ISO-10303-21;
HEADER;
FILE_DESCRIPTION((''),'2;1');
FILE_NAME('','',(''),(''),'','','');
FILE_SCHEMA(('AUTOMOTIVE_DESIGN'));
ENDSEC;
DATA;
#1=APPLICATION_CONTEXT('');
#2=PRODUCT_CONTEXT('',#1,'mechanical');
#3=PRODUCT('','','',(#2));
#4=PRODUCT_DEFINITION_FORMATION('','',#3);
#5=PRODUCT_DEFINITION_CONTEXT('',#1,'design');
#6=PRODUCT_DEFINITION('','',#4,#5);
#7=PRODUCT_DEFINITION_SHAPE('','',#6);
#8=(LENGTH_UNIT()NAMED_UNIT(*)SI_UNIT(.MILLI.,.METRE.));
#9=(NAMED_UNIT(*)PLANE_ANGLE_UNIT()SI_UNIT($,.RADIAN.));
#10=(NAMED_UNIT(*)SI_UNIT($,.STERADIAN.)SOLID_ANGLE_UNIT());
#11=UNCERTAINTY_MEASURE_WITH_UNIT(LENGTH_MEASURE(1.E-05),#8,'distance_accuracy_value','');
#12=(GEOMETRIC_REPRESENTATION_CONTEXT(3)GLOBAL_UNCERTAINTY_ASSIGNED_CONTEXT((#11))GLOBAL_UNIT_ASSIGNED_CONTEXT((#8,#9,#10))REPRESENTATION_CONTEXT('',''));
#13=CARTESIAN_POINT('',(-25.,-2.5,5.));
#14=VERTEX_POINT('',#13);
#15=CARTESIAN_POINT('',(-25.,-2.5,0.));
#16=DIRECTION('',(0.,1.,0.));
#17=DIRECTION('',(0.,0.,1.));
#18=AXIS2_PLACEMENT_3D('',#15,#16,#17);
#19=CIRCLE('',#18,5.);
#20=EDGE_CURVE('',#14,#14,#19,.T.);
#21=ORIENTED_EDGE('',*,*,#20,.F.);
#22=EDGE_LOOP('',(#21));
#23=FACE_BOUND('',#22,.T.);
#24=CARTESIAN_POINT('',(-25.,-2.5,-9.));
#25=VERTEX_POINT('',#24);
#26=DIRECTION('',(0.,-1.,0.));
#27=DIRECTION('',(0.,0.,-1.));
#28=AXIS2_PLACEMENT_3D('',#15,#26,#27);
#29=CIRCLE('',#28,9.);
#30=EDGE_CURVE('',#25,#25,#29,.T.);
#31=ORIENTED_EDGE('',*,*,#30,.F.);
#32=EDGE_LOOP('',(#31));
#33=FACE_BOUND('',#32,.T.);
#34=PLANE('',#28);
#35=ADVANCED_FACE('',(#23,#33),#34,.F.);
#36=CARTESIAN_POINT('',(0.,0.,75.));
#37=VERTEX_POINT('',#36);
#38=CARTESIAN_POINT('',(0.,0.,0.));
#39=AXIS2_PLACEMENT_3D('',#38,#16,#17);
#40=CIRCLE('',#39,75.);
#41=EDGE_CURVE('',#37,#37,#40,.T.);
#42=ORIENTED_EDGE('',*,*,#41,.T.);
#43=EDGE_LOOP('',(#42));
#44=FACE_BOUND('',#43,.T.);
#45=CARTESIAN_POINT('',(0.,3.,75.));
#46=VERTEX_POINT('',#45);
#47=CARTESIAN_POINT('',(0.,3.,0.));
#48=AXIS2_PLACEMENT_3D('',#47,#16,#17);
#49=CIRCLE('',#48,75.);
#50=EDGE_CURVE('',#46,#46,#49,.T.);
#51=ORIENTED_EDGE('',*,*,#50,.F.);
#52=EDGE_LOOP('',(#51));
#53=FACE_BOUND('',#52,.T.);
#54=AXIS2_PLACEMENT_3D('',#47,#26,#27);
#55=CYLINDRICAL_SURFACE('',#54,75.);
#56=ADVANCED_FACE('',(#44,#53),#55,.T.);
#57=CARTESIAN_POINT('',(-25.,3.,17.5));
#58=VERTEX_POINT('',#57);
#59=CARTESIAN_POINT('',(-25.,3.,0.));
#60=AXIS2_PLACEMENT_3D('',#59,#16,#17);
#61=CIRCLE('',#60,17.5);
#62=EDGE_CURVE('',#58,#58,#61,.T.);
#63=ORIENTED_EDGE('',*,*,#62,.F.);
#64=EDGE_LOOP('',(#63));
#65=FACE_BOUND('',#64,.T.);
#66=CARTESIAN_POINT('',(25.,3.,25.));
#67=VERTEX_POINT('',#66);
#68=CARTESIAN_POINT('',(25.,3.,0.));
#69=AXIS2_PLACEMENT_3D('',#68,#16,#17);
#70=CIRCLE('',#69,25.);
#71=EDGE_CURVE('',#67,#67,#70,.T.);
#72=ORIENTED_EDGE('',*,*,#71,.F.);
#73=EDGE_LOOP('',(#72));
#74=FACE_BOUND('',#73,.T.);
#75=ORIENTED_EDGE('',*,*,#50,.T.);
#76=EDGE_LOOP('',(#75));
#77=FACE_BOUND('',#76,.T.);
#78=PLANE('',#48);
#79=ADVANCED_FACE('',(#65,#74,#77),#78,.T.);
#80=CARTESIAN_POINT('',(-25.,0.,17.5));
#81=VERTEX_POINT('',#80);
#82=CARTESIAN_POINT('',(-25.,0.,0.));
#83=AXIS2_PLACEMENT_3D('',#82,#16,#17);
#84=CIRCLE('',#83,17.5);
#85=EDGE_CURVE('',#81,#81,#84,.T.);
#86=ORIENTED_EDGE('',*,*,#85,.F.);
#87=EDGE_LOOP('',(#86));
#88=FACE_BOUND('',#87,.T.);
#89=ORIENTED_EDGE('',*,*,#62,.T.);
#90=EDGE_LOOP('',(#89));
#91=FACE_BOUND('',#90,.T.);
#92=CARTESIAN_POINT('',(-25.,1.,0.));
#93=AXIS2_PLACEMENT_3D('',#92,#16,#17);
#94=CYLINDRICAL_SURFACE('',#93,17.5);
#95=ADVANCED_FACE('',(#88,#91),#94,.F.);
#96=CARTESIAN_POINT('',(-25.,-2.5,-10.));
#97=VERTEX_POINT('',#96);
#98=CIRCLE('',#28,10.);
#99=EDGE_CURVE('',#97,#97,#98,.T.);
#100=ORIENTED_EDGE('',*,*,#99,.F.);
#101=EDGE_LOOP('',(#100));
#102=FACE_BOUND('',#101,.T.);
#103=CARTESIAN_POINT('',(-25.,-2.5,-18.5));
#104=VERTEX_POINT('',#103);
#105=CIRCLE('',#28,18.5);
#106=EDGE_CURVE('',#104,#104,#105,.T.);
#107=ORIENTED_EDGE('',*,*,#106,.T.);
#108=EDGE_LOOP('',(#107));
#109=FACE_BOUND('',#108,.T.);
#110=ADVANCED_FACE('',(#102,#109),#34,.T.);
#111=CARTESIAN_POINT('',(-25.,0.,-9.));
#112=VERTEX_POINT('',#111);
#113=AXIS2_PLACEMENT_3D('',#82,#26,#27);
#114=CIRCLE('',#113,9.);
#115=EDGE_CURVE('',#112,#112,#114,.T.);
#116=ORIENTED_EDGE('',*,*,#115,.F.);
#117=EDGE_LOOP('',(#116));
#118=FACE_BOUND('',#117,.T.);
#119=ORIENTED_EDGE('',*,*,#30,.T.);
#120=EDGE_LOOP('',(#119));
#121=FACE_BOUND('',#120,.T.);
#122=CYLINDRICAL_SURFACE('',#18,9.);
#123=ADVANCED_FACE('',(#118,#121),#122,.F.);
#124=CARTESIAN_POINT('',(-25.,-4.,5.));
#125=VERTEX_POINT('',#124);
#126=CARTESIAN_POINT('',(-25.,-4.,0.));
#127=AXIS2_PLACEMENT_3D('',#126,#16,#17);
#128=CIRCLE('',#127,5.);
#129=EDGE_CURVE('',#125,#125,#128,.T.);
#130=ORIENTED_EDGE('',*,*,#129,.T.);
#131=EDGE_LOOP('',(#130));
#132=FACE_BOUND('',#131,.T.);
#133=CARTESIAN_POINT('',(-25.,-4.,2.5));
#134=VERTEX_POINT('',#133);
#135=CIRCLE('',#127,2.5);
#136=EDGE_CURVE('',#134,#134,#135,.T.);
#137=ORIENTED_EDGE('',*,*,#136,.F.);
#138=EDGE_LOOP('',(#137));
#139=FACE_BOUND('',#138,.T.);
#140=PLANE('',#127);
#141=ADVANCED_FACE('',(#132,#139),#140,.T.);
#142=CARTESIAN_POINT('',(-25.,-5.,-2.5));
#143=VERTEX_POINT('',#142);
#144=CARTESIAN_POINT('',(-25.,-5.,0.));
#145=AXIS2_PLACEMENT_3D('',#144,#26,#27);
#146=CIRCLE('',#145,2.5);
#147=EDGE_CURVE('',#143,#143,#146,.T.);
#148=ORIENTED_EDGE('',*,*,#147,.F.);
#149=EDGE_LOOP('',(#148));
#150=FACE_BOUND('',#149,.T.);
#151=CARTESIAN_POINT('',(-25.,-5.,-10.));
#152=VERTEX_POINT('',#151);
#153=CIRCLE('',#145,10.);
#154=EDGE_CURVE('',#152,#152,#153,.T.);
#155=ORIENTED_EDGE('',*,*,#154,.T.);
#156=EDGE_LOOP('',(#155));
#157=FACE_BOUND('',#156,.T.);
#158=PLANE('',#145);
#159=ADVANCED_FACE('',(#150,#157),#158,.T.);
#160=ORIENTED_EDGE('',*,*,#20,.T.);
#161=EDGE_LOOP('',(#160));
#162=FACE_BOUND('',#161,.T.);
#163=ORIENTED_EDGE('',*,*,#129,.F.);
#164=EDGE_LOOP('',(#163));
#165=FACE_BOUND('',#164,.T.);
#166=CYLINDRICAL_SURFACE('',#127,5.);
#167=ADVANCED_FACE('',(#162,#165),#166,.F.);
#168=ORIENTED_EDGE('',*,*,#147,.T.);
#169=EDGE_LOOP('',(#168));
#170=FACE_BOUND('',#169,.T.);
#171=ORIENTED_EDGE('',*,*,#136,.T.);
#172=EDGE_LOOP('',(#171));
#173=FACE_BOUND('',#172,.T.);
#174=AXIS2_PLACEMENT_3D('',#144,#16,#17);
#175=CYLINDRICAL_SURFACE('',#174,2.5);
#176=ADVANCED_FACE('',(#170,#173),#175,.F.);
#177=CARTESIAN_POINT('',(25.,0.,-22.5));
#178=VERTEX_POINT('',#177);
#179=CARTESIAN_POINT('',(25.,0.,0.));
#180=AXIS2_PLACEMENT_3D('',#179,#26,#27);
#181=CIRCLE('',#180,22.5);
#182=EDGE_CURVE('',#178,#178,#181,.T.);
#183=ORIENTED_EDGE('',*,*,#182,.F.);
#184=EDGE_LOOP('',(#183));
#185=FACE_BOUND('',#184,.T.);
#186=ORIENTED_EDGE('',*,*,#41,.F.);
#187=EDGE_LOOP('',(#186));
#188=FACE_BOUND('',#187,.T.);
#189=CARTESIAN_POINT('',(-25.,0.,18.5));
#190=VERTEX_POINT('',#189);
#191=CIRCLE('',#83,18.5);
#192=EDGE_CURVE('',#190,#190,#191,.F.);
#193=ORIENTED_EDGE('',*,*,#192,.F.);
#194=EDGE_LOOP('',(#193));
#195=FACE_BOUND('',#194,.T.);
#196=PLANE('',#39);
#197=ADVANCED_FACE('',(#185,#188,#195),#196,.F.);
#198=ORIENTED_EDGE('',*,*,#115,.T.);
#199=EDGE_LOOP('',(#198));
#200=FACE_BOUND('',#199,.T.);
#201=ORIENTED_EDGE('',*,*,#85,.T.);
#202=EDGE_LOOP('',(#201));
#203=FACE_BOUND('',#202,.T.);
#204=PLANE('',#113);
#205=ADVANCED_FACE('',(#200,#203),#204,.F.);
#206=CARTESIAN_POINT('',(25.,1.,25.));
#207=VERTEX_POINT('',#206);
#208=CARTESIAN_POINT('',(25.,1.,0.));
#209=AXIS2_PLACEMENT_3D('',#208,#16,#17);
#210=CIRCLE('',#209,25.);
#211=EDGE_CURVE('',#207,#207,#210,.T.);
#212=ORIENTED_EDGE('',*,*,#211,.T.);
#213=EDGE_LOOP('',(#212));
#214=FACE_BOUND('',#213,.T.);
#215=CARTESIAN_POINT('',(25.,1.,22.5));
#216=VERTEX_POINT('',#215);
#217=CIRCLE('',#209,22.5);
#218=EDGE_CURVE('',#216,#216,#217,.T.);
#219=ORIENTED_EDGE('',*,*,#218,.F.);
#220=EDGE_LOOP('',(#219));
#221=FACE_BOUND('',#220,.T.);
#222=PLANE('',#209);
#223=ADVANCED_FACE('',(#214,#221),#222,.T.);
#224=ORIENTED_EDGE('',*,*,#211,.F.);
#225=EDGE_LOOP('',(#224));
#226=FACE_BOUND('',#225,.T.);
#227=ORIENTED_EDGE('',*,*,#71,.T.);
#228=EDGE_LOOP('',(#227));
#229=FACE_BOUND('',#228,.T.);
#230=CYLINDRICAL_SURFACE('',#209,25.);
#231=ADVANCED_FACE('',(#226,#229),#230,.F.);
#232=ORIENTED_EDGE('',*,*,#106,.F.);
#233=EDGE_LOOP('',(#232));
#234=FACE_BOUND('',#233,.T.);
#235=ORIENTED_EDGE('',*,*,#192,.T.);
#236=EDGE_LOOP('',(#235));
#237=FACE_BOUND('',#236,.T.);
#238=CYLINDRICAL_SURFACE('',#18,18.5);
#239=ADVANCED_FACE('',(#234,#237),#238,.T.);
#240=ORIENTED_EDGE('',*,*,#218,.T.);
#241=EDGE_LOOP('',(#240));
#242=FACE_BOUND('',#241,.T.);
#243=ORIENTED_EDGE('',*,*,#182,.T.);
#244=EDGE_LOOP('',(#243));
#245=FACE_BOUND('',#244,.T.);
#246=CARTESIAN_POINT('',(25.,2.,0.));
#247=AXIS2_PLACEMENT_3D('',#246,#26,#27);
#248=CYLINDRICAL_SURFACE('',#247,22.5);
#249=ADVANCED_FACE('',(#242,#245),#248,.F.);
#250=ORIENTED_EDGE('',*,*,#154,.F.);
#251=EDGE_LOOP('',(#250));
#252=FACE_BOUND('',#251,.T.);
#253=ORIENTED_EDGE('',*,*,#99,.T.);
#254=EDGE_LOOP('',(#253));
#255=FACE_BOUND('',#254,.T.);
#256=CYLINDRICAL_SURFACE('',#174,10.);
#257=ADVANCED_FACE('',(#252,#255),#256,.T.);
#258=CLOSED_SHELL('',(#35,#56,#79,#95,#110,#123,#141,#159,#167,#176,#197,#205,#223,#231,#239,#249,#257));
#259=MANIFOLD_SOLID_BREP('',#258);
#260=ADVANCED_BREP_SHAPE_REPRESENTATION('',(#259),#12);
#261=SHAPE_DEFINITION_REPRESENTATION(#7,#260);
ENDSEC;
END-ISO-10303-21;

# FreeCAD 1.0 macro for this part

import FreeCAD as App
import Part
import Sketcher

V = App.Vector
Q = App.Units.Quantity

doc = App.newDocument("Part")
body = doc.addObject("PartDesign::Body", "Body")

# Sketch on XZ plane
sketch1 = body.newObject("Sketcher::SketchObject", "Sketch")
sketch1.AttachmentSupport = (doc.getObject("XZ_Plane"), [""])
sketch1.MapMode = "FlatFace"
sketch1.addGeometry(Part.Circle(V(0, 0, 0), V(0, 0, 1), 75), False)
sketch1.addConstraint([
    Sketcher.Constraint("Coincident", 0, 3, -1, 1),
    Sketcher.Constraint("Diameter", 0, Q("150 mm")),
])
pad1 = body.newObject("PartDesign::Pad", "Pad")
pad1.Profile = sketch1
pad1.Length = 3
pad1.Reversed = True

# Sketch on XZ plane
sketch2 = body.newObject("Sketcher::SketchObject", "Sketch001")
sketch2.AttachmentSupport = (doc.getObject("XZ_Plane"), [""])
sketch2.MapMode = "FlatFace"
sketch2.AttachmentOffset = App.Placement(V(0, 0, -3), App.Rotation())
sketch2.addGeometry([
    Part.Circle(V(-25, 0, 0), V(0, 0, 1), 17.5),
    Part.Circle(V(25, 0, 0), V(0, 0, 1), 25),
], False)
sketch2.addConstraint([
    Sketcher.Constraint("Symmetric", 0, 3, 1, 3, -1, 1),
    Sketcher.Constraint("PointOnObject", 0, 3, -1),
    Sketcher.Constraint("Diameter", 0, Q("35 mm")),
    Sketcher.Constraint("Diameter", 1, Q("50 mm")),
    Sketcher.Constraint("DistanceX", 0, 3, -1, 1, Q("25 mm")),
])
pocket1 = body.newObject("PartDesign::Pocket", "Pocket")
pocket1.Profile = sketch2
pocket1.Length = 2
pocket1.Reversed = True

# Sketch on XZ plane
sketch3 = body.newObject("Sketcher::SketchObject", "Sketch002")
sketch3.AttachmentSupport = (doc.getObject("XZ_Plane"), [""])
sketch3.MapMode = "FlatFace"
sketch3.addGeometry(Part.Circle(V(25, 0, 0), V(0, 0, 1), 22.5), False)
sketch3.addConstraint([
    Sketcher.Constraint("PointOnObject", 0, 3, -1),
    Sketcher.Constraint("Diameter", 0, Q("45 mm")),
    Sketcher.Constraint("DistanceX", -1, 1, 0, 3, Q("25 mm")),
])
pocket2 = body.newObject("PartDesign::Pocket", "Pocket001")
pocket2.Profile = sketch3
pocket2.Length = 2

# Sketch on XZ plane
sketch4 = body.newObject("Sketcher::SketchObject", "Sketch003")
sketch4.AttachmentSupport = (doc.getObject("XZ_Plane"), [""])
sketch4.MapMode = "FlatFace"
sketch4.AttachmentOffset = App.Placement(V(0, 0, -1), App.Rotation())
sketch4.addGeometry(Part.Circle(V(-25, 0, 0), V(0, 0, 1), 17.5), False)
sketch4.addConstraint([
    Sketcher.Constraint("PointOnObject", 0, 3, -1),
    Sketcher.Constraint("Diameter", 0, Q("35 mm")),
    Sketcher.Constraint("DistanceX", 0, 3, -1, 1, Q("25 mm")),
])
pocket3 = body.newObject("PartDesign::Pocket", "Pocket002")
pocket3.Profile = sketch4
pocket3.Length = 1
pocket3.Reversed = True

# Sketch on XZ plane
sketch5 = body.newObject("Sketcher::SketchObject", "Sketch004")
sketch5.AttachmentSupport = (doc.getObject("XZ_Plane"), [""])
sketch5.MapMode = "FlatFace"
sketch5.addGeometry([
    Part.Circle(V(-25, 0, 0), V(0, 0, 1), 18.5),
    Part.Circle(V(-25, 0, 0), V(0, 0, 1), 9),
], False)
sketch5.addConstraint([
    Sketcher.Constraint("Coincident", 1, 3, 0, 3),
    Sketcher.Constraint("PointOnObject", 0, 3, -1),
    Sketcher.Constraint("Diameter", 0, Q("37 mm")),
    Sketcher.Constraint("Diameter", 1, Q("18 mm")),
    Sketcher.Constraint("DistanceX", 0, 3, -1, 1, Q("25 mm")),
])
pad2 = body.newObject("PartDesign::Pad", "Pad001")
pad2.Profile = sketch5
pad2.Length = 2.5

# Sketch on XZ plane
sketch6 = body.newObject("Sketcher::SketchObject", "Sketch005")
sketch6.AttachmentSupport = (doc.getObject("XZ_Plane"), [""])
sketch6.MapMode = "FlatFace"
sketch6.AttachmentOffset = App.Placement(V(0, 0, 2.5), App.Rotation())
sketch6.addGeometry([
    Part.Circle(V(-25, 0, 0), V(0, 0, 1), 10),
    Part.Circle(V(-25, 0, 0), V(0, 0, 1), 2.5),
], False)
sketch6.addConstraint([
    Sketcher.Constraint("Coincident", 1, 3, 0, 3),
    Sketcher.Constraint("PointOnObject", 0, 3, -1),
    Sketcher.Constraint("Diameter", 0, Q("20 mm")),
    Sketcher.Constraint("Diameter", 1, Q("5 mm")),
    Sketcher.Constraint("DistanceX", 0, 3, -1, 1, Q("25 mm")),
])
pad3 = body.newObject("PartDesign::Pad", "Pad002")
pad3.Profile = sketch6
pad3.Length = 2.5

# Sketch on XZ plane
sketch7 = body.newObject("Sketcher::SketchObject", "Sketch006")
sketch7.AttachmentSupport = (doc.getObject("XZ_Plane"), [""])
sketch7.MapMode = "FlatFace"
sketch7.AttachmentOffset = App.Placement(V(0, 0, 2.5), App.Rotation())
sketch7.addGeometry(Part.Circle(V(-25, 0, 0), V(0, 0, 1), 5), False)
sketch7.addConstraint([
    Sketcher.Constraint("PointOnObject", 0, 3, -1),
    Sketcher.Constraint("Diameter", 0, Q("10 mm")),
    Sketcher.Constraint("DistanceX", 0, 3, -1, 1, Q("25 mm")),
])
pocket4 = body.newObject("PartDesign::Pocket", "Pocket003")
pocket4.Profile = sketch7
pocket4.Length = 1.5
pocket4.Reversed = True

doc.recompute()
